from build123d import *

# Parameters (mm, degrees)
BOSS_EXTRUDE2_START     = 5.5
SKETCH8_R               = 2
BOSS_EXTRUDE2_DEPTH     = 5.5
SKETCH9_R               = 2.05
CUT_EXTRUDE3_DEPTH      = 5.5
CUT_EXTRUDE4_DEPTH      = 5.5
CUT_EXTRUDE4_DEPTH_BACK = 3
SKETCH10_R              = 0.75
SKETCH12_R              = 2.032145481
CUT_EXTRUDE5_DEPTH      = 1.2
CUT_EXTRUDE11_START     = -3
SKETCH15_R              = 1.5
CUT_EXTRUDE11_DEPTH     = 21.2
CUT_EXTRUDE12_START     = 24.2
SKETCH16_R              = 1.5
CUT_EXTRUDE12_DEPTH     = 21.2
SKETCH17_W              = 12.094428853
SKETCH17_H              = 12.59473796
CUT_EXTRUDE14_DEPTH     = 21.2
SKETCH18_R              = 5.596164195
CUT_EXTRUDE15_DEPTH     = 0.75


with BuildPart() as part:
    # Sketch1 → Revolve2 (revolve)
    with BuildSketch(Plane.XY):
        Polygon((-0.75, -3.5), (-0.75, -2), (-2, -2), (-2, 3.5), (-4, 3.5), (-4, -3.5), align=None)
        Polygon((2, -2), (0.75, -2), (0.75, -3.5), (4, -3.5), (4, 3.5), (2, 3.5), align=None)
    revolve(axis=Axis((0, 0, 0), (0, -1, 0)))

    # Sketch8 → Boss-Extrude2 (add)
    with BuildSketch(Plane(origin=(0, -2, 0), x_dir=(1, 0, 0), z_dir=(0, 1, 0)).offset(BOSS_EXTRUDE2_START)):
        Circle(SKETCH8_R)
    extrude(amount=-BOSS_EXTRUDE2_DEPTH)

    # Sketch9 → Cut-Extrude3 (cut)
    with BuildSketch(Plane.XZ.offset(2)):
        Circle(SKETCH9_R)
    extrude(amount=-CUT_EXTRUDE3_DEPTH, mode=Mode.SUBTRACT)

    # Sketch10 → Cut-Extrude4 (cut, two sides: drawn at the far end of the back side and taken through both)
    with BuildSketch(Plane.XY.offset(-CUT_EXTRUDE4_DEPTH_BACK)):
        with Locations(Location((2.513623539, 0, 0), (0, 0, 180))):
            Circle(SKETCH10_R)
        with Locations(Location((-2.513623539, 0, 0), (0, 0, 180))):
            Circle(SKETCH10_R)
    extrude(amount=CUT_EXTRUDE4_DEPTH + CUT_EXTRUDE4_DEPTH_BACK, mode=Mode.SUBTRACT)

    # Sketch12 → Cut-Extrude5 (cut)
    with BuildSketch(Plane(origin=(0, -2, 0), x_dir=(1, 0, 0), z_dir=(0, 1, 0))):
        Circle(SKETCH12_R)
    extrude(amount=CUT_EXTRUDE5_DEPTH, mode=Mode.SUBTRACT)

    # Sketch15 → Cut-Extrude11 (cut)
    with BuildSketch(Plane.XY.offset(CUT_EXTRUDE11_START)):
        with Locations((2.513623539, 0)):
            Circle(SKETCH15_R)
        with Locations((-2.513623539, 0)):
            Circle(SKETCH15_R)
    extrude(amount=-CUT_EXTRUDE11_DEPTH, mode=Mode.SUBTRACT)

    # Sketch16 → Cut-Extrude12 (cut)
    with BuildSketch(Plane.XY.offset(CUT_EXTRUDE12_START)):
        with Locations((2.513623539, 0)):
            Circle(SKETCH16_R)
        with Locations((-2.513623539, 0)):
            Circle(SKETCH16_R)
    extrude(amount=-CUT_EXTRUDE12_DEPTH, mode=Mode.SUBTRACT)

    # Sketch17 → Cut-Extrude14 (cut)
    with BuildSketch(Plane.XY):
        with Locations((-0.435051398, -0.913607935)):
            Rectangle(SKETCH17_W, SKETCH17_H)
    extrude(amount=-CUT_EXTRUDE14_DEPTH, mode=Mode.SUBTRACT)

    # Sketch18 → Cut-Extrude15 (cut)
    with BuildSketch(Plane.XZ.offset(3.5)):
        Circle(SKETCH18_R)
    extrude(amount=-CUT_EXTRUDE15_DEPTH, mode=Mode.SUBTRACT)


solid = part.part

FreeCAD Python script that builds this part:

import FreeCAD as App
import Part
import Sketcher

V = App.Vector


def add_polygon(sketch, points):
    """Adds a closed chain of lines whose ends are joined by coincident constraints."""
    first, n = sketch.GeometryCount, len(points)
    for a, b in zip(points, points[1:] + points[:1]):
        sketch.addGeometry(Part.LineSegment(App.Vector(*a, 0), App.Vector(*b, 0)), False)
    for i in range(n):
        sketch.addConstraint(Sketcher.Constraint("Coincident", first + i, 2, first + (i + 1) % n, 1))

doc = App.newDocument("Part")
body = doc.addObject("PartDesign::Body", "Body")

# Sketch on XY plane
sketch1 = body.newObject("Sketcher::SketchObject", "Sketch")
sketch1.AttachmentSupport = (doc.getObject("XY_Plane"), [""])
sketch1.MapMode = "FlatFace"
add_polygon(sketch1, [(-0.75, -3.5), (-0.75, -2), (-2, -2), (-2, 3.5), (-4, 3.5), (-4, -3.5)])  # lines 0-5
add_polygon(sketch1, [(2, -2), (0.75, -2), (0.75, -3.5), (4, -3.5), (4, 3.5), (2, 3.5)])  # lines 6-11
sketch1.addConstraint([
    Sketcher.Constraint("Vertical", 0),
    Sketcher.Constraint("Horizontal", 1),
    Sketcher.Constraint("Vertical", 2),
    Sketcher.Constraint("Horizontal", 3),
    Sketcher.Constraint("Vertical", 4),
    Sketcher.Constraint("Horizontal", 5),
    Sketcher.Constraint("Horizontal", 6),
    Sketcher.Constraint("Vertical", 7),
    Sketcher.Constraint("Horizontal", 8),
    Sketcher.Constraint("Vertical", 9),
    Sketcher.Constraint("Horizontal", 10),
    Sketcher.Constraint("Vertical", 11),
    Sketcher.Constraint("Symmetric", 3, 2, 8, 2, -1, 1),
    Sketcher.Constraint("Symmetric", 0, 2, 6, 2, -2),
    Sketcher.Constraint("Symmetric", 2, 2, 10, 2, -2),
    Sketcher.Constraint("Horizontal", 5, 2, 7, 2),
    Sketcher.Constraint("DistanceX", 3, 2, 3, 1, 2.0),
    Sketcher.Constraint("DistanceY", 4, 2, 4, 1, 7.0),
    Sketcher.Constraint("DistanceY", 0, 1, 0, 2, 1.5),
    Sketcher.Constraint("DistanceX", 1, 2, -1, 1, 2.0),
    Sketcher.Constraint("DistanceX", 1, 2, 1, 1, 1.25),
])
revolution = body.newObject("PartDesign::Revolution", "Revolution")
revolution.Profile = sketch1
revolution.ReferenceAxis = (sketch1, ["V_Axis"])
revolution.Angle = 360

# Sketch on XZ plane
sketch2 = body.newObject("Sketcher::SketchObject", "Sketch001")
sketch2.AttachmentSupport = (doc.getObject("XZ_Plane"), [""])
sketch2.MapMode = "FlatFace"
sketch2.AttachmentOffset = App.Placement(V(0, 0, -3.5), App.Rotation())
sketch2.addGeometry(Part.Circle(V(0, 0, 0), V(0, 0, 1), 2), False)
sketch2.addConstraint([
    Sketcher.Constraint("Coincident", 0, 3, -1, 1),
    Sketcher.Constraint("Diameter", 0, 4.0),
])
pad1 = body.newObject("PartDesign::Pad", "Pad")
pad1.Profile = sketch2
pad1.Length = 5.5

# Sketch on XZ plane
sketch3 = body.newObject("Sketcher::SketchObject", "Sketch002")
sketch3.AttachmentSupport = (doc.getObject("XZ_Plane"), [""])
sketch3.MapMode = "FlatFace"
sketch3.AttachmentOffset = App.Placement(V(0, 0, 2), App.Rotation())
sketch3.addGeometry(Part.Circle(V(0, 0, 0), V(0, 0, 1), 2.05), False)
sketch3.addConstraint([
    Sketcher.Constraint("Coincident", 0, 3, -1, 1),
    Sketcher.Constraint("Diameter", 0, 4.1),
])
pocket1 = body.newObject("PartDesign::Pocket", "Pocket")
pocket1.Profile = sketch3
pocket1.Length = 5.5

# Sketch on XY plane
sketch4 = body.newObject("Sketcher::SketchObject", "Sketch003")
sketch4.AttachmentSupport = (doc.getObject("XY_Plane"), [""])
sketch4.MapMode = "FlatFace"
sketch4.addGeometry([
    Part.Circle(V(2.513624, 0, 0), V(0, 0, 1), 0.75),
    Part.Circle(V(-2.513624, 0, 0), V(0, 0, 1), 0.75),
], False)
sketch4.addConstraint([
    Sketcher.Constraint("Equal", 0, 1),
    Sketcher.Constraint("Symmetric", 0, 3, 1, 3, -1, 1),
    Sketcher.Constraint("PointOnObject", 0, 3, -1),
    Sketcher.Constraint("Diameter", 0, 1.5),
    Sketcher.Constraint("DistanceX", -1, 1, 0, 3, 2.513624),
])
pocket2 = body.newObject("PartDesign::Pocket", "Pocket001")
pocket2.Profile = sketch4
pocket2.Type = "TwoLengths"
pocket2.Length = 5.5
pocket2.Length2 = 3
pocket2.Reversed = True

# Sketch on XZ plane
sketch5 = body.newObject("Sketcher::SketchObject", "Sketch004")
sketch5.AttachmentSupport = (doc.getObject("XZ_Plane"), [""])
sketch5.MapMode = "FlatFace"
sketch5.AttachmentOffset = App.Placement(V(0, 0, 2), App.Rotation())
sketch5.addGeometry(Part.Circle(V(0, 0, 0), V(0, 0, 1), 2.032145), False)
sketch5.addConstraint([
    Sketcher.Constraint("Coincident", 0, 3, -1, 1),
    Sketcher.Constraint("Diameter", 0, 4.064291),
])
pocket3 = body.newObject("PartDesign::Pocket", "Pocket002")
pocket3.Profile = sketch5
pocket3.Length = 1.2

# Sketch on XY plane
sketch6 = body.newObject("Sketcher::SketchObject", "Sketch005")
sketch6.AttachmentSupport = (doc.getObject("XY_Plane"), [""])
sketch6.MapMode = "FlatFace"
sketch6.AttachmentOffset = App.Placement(V(0, 0, -3), App.Rotation())
sketch6.addGeometry([
    Part.Circle(V(2.513624, 0, 0), V(0, 0, 1), 1.5),
    Part.Circle(V(-2.513624, 0, 0), V(0, 0, 1), 1.5),
], False)
sketch6.addConstraint([
    Sketcher.Constraint("Equal", 0, 1),
    Sketcher.Constraint("Symmetric", 0, 3, 1, 3, -1, 1),
    Sketcher.Constraint("PointOnObject", 0, 3, -1),
    Sketcher.Constraint("Diameter", 0, 3.0),
    Sketcher.Constraint("DistanceX", -1, 1, 0, 3, 2.513624),
])
pocket4 = body.newObject("PartDesign::Pocket", "Pocket003")
pocket4.Profile = sketch6
pocket4.Length = 21.2

# Sketch on XY plane
sketch7 = body.newObject("Sketcher::SketchObject", "Sketch006")
sketch7.AttachmentSupport = (doc.getObject("XY_Plane"), [""])
sketch7.MapMode = "FlatFace"
sketch7.AttachmentOffset = App.Placement(V(0, 0, 24.2), App.Rotation())
sketch7.addGeometry([
    Part.Circle(V(2.513624, 0, 0), V(0, 0, 1), 1.5),
    Part.Circle(V(-2.513624, 0, 0), V(0, 0, 1), 1.5),
], False)
sketch7.addConstraint([
    Sketcher.Constraint("Equal", 0, 1),
    Sketcher.Constraint("Symmetric", 0, 3, 1, 3, -1, 1),
    Sketcher.Constraint("PointOnObject", 0, 3, -1),
    Sketcher.Constraint("Diameter", 0, 3.0),
    Sketcher.Constraint("DistanceX", -1, 1, 0, 3, 2.513624),
])
pocket5 = body.newObject("PartDesign::Pocket", "Pocket004")
pocket5.Profile = sketch7
pocket5.Length = 21.2

# Sketch on XY plane
sketch8 = body.newObject("Sketcher::SketchObject", "Sketch007")
sketch8.AttachmentSupport = (doc.getObject("XY_Plane"), [""])
sketch8.MapMode = "FlatFace"
add_polygon(sketch8, [(-6.482266, 5.383761), (-6.482266, -7.210977), (5.612163, -7.210977), (5.612163, 5.383761)])  # lines 0-3
sketch8.addConstraint([
    Sketcher.Constraint("Vertical", 0),
    Sketcher.Constraint("Horizontal", 1),
    Sketcher.Constraint("Vertical", 2),
    Sketcher.Constraint("Horizontal", 3),
    Sketcher.Constraint("DistanceX", 1, 1, 1, 2, 12.094429),
    Sketcher.Constraint("DistanceY", 0, 2, 0, 1, 12.594738),
    Sketcher.Constraint("DistanceY", -1, 1, 2, 2, 5.383761),
    Sketcher.Constraint("DistanceX", 0, 2, -1, 1, 6.482266),
])
pocket6 = body.newObject("PartDesign::Pocket", "Pocket005")
pocket6.Profile = sketch8
pocket6.Length = 21.2

# Sketch on XZ plane
sketch9 = body.newObject("Sketcher::SketchObject", "Sketch008")
sketch9.AttachmentSupport = (doc.getObject("XZ_Plane"), [""])
sketch9.MapMode = "FlatFace"
sketch9.AttachmentOffset = App.Placement(V(0, 0, 3.5), App.Rotation())
sketch9.addGeometry(Part.Circle(V(0, 0, 0), V(0, 0, 1), 5.596164), False)
sketch9.addConstraint([
    Sketcher.Constraint("Coincident", 0, 3, -1, 1),
    Sketcher.Constraint("Diameter", 0, 11.192328),
])
pocket7 = body.newObject("PartDesign::Pocket", "Pocket006")
pocket7.Profile = sketch9
pocket7.Length = 0.75

doc.recompute()
